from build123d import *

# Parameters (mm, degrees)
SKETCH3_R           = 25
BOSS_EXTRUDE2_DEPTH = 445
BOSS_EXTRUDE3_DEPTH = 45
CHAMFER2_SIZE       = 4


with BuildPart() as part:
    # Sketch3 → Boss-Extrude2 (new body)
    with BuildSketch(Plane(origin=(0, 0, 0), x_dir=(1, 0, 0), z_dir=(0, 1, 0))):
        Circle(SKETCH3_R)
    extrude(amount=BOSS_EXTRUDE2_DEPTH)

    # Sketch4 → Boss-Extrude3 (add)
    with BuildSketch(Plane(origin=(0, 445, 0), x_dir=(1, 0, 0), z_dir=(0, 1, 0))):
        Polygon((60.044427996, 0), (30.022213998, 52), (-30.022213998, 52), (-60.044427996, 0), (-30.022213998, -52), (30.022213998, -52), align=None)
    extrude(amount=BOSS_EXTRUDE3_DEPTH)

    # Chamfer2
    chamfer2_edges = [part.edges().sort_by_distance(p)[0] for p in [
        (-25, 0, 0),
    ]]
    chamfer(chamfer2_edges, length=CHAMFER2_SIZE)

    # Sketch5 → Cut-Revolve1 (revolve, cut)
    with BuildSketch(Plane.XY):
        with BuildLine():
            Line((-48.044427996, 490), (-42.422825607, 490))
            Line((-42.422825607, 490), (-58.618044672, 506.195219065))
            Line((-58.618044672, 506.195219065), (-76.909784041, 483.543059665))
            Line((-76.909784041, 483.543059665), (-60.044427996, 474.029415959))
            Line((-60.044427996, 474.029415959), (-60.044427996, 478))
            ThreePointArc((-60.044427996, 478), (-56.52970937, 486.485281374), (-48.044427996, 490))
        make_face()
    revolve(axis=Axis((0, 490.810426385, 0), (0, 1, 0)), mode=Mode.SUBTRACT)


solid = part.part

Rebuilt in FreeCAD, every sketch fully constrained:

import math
import FreeCAD as App
import Part
import Sketcher

V = App.Vector
Q = App.Units.Quantity


def edges_at(feature, points):
    """Names of the edges that pass closest to the given points."""
    edges = feature.Shape.Edges
    near = lambda p: min(range(len(edges)), key=lambda i: edges[i].distToShape(Part.Vertex(*p))[0])
    return sorted({f"Edge{near(p) + 1}" for p in points})

doc = App.newDocument("Part")
params = doc.addObject("Spreadsheet::Sheet", "Params")
for row, (alias, value) in enumerate([
    ("sketch1_diameter", "50 mm"),
    ("pad1_length", "445 mm"),
    ("pad2_length", "45 mm"),
    ("chamfer_size", "4 mm"),
    ("sketch3_radius", "12 mm"),
    ("groove_angle", "360 deg"),
], start=1):
    params.set(f"A{row}", alias)
    params.set(f"B{row}", "=" + value)
    params.setAlias(f"B{row}", alias)

body = doc.addObject("PartDesign::Body", "Body")

# Sketch on XZ plane
sketch1 = body.newObject("Sketcher::SketchObject", "Sketch")
sketch1.AttachmentSupport = (doc.getObject("XZ_Plane"), [""])
sketch1.MapMode = "FlatFace"
sketch1.addGeometry(Part.Circle(V(0, 0, 0), V(0, 0, 1), 25), False)
sketch1.addConstraint(Sketcher.Constraint("Coincident", 0, 3, -1, 1))
sketch1.addConstraint(Sketcher.Constraint("Diameter", 0, 50.0))
sketch1.setExpression("Constraints[1]", "Params.sketch1_diameter")
pad1 = body.newObject("PartDesign::Pad", "Pad")
pad1.Profile = sketch1
pad1.setExpression("Length", "Params.pad1_length")
pad1.Reversed = True

# Sketch on XZ plane
sketch2 = body.newObject("Sketcher::SketchObject", "Sketch001")
sketch2.AttachmentSupport = (doc.getObject("XZ_Plane"), [""])
sketch2.MapMode = "FlatFace"
sketch2.AttachmentOffset = App.Placement(V(0, 0, -445), App.Rotation())
sketch2.addGeometry(Part.LineSegment(V(60, 0, 0), V(30, -52, 0)), False)
sketch2.addGeometry(Part.LineSegment(V(30, -52, 0), V(-30, -52, 0)), False)
sketch2.addGeometry(Part.LineSegment(V(-30, -52, 0), V(-60, 0, 0)), False)
sketch2.addGeometry(Part.LineSegment(V(-60, 0, 0), V(-30, 52, 0)), False)
sketch2.addGeometry(Part.LineSegment(V(-30, 52, 0), V(30, 52, 0)), False)
sketch2.addGeometry(Part.LineSegment(V(30, 52, 0), V(60, 0, 0)), False)
sketch2.addConstraint(Sketcher.Constraint("Coincident", 0, 2, 1, 1))
sketch2.addConstraint(Sketcher.Constraint("Coincident", 1, 2, 2, 1))
sketch2.addConstraint(Sketcher.Constraint("Coincident", 2, 2, 3, 1))
sketch2.addConstraint(Sketcher.Constraint("Coincident", 3, 2, 4, 1))
sketch2.addConstraint(Sketcher.Constraint("Coincident", 4, 2, 5, 1))
sketch2.addConstraint(Sketcher.Constraint("Coincident", 5, 2, 0, 1))
sketch2.addConstraint(Sketcher.Constraint("Horizontal", 1))
sketch2.addConstraint(Sketcher.Constraint("Horizontal", 4))
sketch2.addConstraint(Sketcher.Constraint("Symmetric", 0, 2, 3, 2, -1, 1))
sketch2.addConstraint(Sketcher.Constraint("Symmetric", 2, 2, 5, 2, -1, 1))
sketch2.addConstraint(Sketcher.Constraint("PointOnObject", 2, 2, -1))
sketch2.addConstraint(Sketcher.Constraint("Parallel", 2, 5))
sketch2.addConstraint(Sketcher.Constraint("Vertical", 1, 2, 3, 2))
sketch2.addConstraint(Sketcher.Constraint("Angle", 0, Q("-120 deg")))
sketch2.addConstraint(Sketcher.Constraint("DistanceY", 0, 2, -1, 1, 52.0))
sketch2.addConstraint(Sketcher.Constraint("DistanceX", 1, 2, 1, 1, 60.044428))
pad2 = body.newObject("PartDesign::Pad", "Pad001")
pad2.Profile = sketch2
pad2.setExpression("Length", "Params.pad2_length")
pad2.Reversed = True
doc.recompute()

chamfer = body.newObject("PartDesign::Chamfer", "Chamfer")
chamfer.Base = (pad2, edges_at(pad2, [(-25, 0, 0)]))
chamfer.setExpression("Size", "Params.chamfer_size")

# Sketch on XY plane
sketch3 = body.newObject("Sketcher::SketchObject", "Sketch002")
sketch3.AttachmentSupport = (doc.getObject("XY_Plane"), [""])
sketch3.MapMode = "FlatFace"
sketch3.addGeometry(Part.LineSegment(V(-48, 490, 0), V(-42.4, 490, 0)), False)
sketch3.addGeometry(Part.LineSegment(V(-42.4, 490, 0), V(-58.6, 506.2, 0)), False)
sketch3.addGeometry(Part.LineSegment(V(-58.6, 506.2, 0), V(-76.9, 483.5, 0)), False)
sketch3.addGeometry(Part.LineSegment(V(-76.9, 483.5, 0), V(-60, 474, 0)), False)
sketch3.addGeometry(Part.LineSegment(V(-60, 474, 0), V(-60, 478, 0)), False)
sketch3.addGeometry(Part.ArcOfCircle(Part.Circle(V(-48, 478, 0), V(0, 0, 1), 12), math.radians(90), math.radians(180)), False)
sketch3.addConstraint(Sketcher.Constraint("Coincident", 0, 2, 1, 1))
sketch3.addConstraint(Sketcher.Constraint("Coincident", 1, 2, 2, 1))
sketch3.addConstraint(Sketcher.Constraint("Coincident", 2, 2, 3, 1))
sketch3.addConstraint(Sketcher.Constraint("Coincident", 3, 2, 4, 1))
sketch3.addConstraint(Sketcher.Constraint("Tangent", 4, 2, 5, 2))
sketch3.addConstraint(Sketcher.Constraint("Tangent", 5, 1, 0, 1))
sketch3.addConstraint(Sketcher.Constraint("Horizontal", 0))
sketch3.addConstraint(Sketcher.Constraint("Vertical", 4))
sketch3.addConstraint(Sketcher.Constraint("Radius", 5, 12.0))
sketch3.addConstraint(Sketcher.Constraint("Angle", 1, Q("135 deg")))
sketch3.addConstraint(Sketcher.Constraint("DistanceY", -1, 1, 5, 3, 478.0))
sketch3.addConstraint(Sketcher.Constraint("Distance", 1, 22.903498))
sketch3.addConstraint(Sketcher.Constraint("DistanceX", 0, 1, 0, 2, 5.621602))
sketch3.addConstraint(Sketcher.Constraint("DistanceY", 4, 1, 4, 2, 3.970584))
sketch3.addConstraint(Sketcher.Constraint("DistanceY", -1, 1, 2, 2, 483.54306))
sketch3.addConstraint(Sketcher.Constraint("DistanceX", 2, 2, 1, 2, 18.291739))
sketch3.addConstraint(Sketcher.Constraint("DistanceX", 5, 3, -1, 1, 48.044428))
sketch3.setExpression("Constraints[8]", "Params.sketch3_radius")
groove = body.newObject("PartDesign::Groove", "Groove")
groove.Profile = sketch3
groove.ReferenceAxis = (sketch3, ["V_Axis"])
groove.setExpression("Angle", "Params.groove_angle")

doc.recompute()
